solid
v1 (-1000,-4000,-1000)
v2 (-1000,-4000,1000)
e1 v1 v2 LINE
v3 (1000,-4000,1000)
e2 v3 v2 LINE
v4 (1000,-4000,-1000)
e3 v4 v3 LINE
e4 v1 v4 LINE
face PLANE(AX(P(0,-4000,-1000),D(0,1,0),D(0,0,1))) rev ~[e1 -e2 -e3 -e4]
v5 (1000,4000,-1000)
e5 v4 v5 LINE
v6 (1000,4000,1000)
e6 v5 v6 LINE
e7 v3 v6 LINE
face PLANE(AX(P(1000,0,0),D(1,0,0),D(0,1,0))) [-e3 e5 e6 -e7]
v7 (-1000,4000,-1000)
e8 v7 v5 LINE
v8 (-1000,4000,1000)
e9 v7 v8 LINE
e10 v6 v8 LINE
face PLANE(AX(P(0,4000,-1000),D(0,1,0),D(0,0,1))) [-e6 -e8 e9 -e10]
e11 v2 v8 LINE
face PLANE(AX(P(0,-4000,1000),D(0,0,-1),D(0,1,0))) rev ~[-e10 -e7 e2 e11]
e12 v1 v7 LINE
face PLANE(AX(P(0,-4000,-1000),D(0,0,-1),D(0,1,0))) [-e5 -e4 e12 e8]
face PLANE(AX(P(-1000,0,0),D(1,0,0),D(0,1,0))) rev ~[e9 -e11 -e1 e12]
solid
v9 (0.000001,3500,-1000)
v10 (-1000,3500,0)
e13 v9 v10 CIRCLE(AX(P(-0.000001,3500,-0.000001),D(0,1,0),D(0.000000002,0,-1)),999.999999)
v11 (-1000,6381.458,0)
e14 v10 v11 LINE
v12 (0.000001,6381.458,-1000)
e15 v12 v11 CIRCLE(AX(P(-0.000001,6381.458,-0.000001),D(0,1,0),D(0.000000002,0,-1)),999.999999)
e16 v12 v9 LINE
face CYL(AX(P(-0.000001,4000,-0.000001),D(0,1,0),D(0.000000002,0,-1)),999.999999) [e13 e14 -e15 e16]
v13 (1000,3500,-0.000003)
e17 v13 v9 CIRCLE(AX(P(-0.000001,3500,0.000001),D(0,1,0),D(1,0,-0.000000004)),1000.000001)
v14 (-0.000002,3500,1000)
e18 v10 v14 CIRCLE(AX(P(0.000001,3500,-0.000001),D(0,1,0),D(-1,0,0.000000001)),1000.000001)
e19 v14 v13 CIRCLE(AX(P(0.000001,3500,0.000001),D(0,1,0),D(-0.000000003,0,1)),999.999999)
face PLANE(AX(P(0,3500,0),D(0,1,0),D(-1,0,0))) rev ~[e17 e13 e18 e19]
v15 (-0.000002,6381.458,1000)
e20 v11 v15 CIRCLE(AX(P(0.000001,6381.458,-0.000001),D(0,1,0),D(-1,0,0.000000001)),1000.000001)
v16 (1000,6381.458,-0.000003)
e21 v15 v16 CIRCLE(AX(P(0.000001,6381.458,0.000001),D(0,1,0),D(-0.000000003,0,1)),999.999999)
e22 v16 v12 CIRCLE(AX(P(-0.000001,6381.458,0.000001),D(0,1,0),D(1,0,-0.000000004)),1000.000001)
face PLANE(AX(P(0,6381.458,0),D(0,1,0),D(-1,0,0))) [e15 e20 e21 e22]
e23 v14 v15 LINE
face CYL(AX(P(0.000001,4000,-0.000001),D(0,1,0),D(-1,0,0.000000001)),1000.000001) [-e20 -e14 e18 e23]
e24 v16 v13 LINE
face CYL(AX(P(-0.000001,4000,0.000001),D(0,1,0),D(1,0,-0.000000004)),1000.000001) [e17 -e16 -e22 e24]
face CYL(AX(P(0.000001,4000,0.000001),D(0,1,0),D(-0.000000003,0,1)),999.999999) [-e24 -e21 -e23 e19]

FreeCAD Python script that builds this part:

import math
import FreeCAD as App
import Part
import Sketcher
Q = App.Units.Quantity

doc = App.newDocument("Part")
params = doc.addObject("Spreadsheet::Sheet", "Params")
for row, (alias, value) in enumerate([
    ("sketch1_width", "8000 mm"),
    ("sketch1_height", "2000 mm"),
    ("pad1_length", "2000 mm"),
    ("sketch2_radius", "999.999999 mm"),
    ("pad2_length", "2381.458 mm"),
    ("pad2_length2", "500 mm"),
], start=1):
    params.set(f"A{row}", alias)
    params.set(f"B{row}", "=" + value)
    params.setAlias(f"B{row}", alias)

body = doc.addObject("PartDesign::Body", "Body")

sketch1 = body.newObject("Sketcher::SketchObject", "Sketch")
sketch1.AttachmentSupport = (doc.getObject("YZ_Plane"), [""])
sketch1.MapMode = "FlatFace"
sketch1.addGeometry(Part.LineSegment(App.Vector(-4000, 1000, 0), App.Vector(-4000, -1000, 0)), False)
sketch1.addGeometry(Part.LineSegment(App.Vector(-4000, -1000, 0), App.Vector(4000, -1000, 0)), False)
sketch1.addGeometry(Part.LineSegment(App.Vector(4000, -1000, 0), App.Vector(4000, 1000, 0)), False)
sketch1.addGeometry(Part.LineSegment(App.Vector(4000, 1000, 0), App.Vector(-4000, 1000, 0)), False)
sketch1.addConstraint(Sketcher.Constraint("Coincident", 0, 2, 1, 1))
sketch1.addConstraint(Sketcher.Constraint("Coincident", 1, 2, 2, 1))
sketch1.addConstraint(Sketcher.Constraint("Coincident", 2, 2, 3, 1))
sketch1.addConstraint(Sketcher.Constraint("Coincident", 3, 2, 0, 1))
sketch1.addConstraint(Sketcher.Constraint("Vertical", 0))
sketch1.addConstraint(Sketcher.Constraint("Horizontal", 1))
sketch1.addConstraint(Sketcher.Constraint("Vertical", 2))
sketch1.addConstraint(Sketcher.Constraint("Horizontal", 3))
sketch1.addConstraint(Sketcher.Constraint("Symmetric", 0, 2, 2, 2, -1, 1))
sketch1.addConstraint(Sketcher.Constraint("DistanceX", 1, 1, 1, 2, Q("8000 mm")))
sketch1.addConstraint(Sketcher.Constraint("DistanceY", 0, 2, 0, 1, Q("2000 mm")))
sketch1.setExpression("Constraints[9]", "Params.sketch1_width")
sketch1.setExpression("Constraints[10]", "Params.sketch1_height")
pad1 = body.newObject("PartDesign::Pad", "Pad")
pad1.Profile = sketch1
pad1.setExpression("Length", "Params.pad1_length")
pad1.Midplane = True
body2 = doc.addObject("PartDesign::Body", "Body001")

sketch2 = body2.newObject("Sketcher::SketchObject", "Sketch001")
sketch2.AttachmentSupport = (doc.getObject("XZ_Plane001"), [""])
sketch2.MapMode = "FlatFace"
sketch2.AttachmentOffset = App.Placement(App.Vector(0, 0, -4000), App.Rotation())
sketch2.addGeometry(Part.ArcOfCircle(Part.Circle(App.Vector(0, 0, 0), App.Vector(0, 0, 1), 1000), math.radians(180), math.radians(270)), False)
sketch2.addGeometry(Part.ArcOfCircle(Part.Circle(App.Vector(0, 0, 0), App.Vector(0, 0, 1), 1000), math.radians(90), math.radians(180)), False)
sketch2.addGeometry(Part.ArcOfCircle(Part.Circle(App.Vector(0, 0, 0), App.Vector(0, 0, 1), 1000), math.radians(0), math.radians(90)), False)
sketch2.addGeometry(Part.ArcOfCircle(Part.Circle(App.Vector(0, 0, 0), App.Vector(0, 0, 1), 1000), math.radians(-90), math.radians(0)), False)
sketch2.addConstraint(Sketcher.Constraint("Coincident", 0, 1, 1, 2))
sketch2.addConstraint(Sketcher.Constraint("Coincident", 1, 1, 2, 2))
sketch2.addConstraint(Sketcher.Constraint("Coincident", 2, 1, 3, 2))
sketch2.addConstraint(Sketcher.Constraint("Coincident", 3, 1, 0, 2))
sketch2.addConstraint(Sketcher.Constraint("Coincident", 0, 3, -1, 1))
sketch2.addConstraint(Sketcher.Constraint("Coincident", 1, 3, -1, 1))
sketch2.addConstraint(Sketcher.Constraint("Coincident", 2, 3, -1, 1))
sketch2.addConstraint(Sketcher.Constraint("Equal", 2, 3))
sketch2.addConstraint(Sketcher.Constraint("PointOnObject", 0, 1, -1))
sketch2.addConstraint(Sketcher.Constraint("PointOnObject", 1, 1, -2))
sketch2.addConstraint(Sketcher.Constraint("PointOnObject", 3, 1, -2))
sketch2.addConstraint(Sketcher.Constraint("Horizontal", 0, 3, 2, 1))
sketch2.addConstraint(Sketcher.Constraint("Radius", 0, Q("999.999999 mm")))
sketch2.setExpression("Constraints[12]", "Params.sketch2_radius")
pad2 = body2.newObject("PartDesign::Pad", "Pad001")
pad2.Profile = sketch2
pad2.Type = "TwoLengths"
pad2.setExpression("Length", "Params.pad2_length")
pad2.setExpression("Length2", "Params.pad2_length2")
pad2.Reversed = True

doc.recompute()
